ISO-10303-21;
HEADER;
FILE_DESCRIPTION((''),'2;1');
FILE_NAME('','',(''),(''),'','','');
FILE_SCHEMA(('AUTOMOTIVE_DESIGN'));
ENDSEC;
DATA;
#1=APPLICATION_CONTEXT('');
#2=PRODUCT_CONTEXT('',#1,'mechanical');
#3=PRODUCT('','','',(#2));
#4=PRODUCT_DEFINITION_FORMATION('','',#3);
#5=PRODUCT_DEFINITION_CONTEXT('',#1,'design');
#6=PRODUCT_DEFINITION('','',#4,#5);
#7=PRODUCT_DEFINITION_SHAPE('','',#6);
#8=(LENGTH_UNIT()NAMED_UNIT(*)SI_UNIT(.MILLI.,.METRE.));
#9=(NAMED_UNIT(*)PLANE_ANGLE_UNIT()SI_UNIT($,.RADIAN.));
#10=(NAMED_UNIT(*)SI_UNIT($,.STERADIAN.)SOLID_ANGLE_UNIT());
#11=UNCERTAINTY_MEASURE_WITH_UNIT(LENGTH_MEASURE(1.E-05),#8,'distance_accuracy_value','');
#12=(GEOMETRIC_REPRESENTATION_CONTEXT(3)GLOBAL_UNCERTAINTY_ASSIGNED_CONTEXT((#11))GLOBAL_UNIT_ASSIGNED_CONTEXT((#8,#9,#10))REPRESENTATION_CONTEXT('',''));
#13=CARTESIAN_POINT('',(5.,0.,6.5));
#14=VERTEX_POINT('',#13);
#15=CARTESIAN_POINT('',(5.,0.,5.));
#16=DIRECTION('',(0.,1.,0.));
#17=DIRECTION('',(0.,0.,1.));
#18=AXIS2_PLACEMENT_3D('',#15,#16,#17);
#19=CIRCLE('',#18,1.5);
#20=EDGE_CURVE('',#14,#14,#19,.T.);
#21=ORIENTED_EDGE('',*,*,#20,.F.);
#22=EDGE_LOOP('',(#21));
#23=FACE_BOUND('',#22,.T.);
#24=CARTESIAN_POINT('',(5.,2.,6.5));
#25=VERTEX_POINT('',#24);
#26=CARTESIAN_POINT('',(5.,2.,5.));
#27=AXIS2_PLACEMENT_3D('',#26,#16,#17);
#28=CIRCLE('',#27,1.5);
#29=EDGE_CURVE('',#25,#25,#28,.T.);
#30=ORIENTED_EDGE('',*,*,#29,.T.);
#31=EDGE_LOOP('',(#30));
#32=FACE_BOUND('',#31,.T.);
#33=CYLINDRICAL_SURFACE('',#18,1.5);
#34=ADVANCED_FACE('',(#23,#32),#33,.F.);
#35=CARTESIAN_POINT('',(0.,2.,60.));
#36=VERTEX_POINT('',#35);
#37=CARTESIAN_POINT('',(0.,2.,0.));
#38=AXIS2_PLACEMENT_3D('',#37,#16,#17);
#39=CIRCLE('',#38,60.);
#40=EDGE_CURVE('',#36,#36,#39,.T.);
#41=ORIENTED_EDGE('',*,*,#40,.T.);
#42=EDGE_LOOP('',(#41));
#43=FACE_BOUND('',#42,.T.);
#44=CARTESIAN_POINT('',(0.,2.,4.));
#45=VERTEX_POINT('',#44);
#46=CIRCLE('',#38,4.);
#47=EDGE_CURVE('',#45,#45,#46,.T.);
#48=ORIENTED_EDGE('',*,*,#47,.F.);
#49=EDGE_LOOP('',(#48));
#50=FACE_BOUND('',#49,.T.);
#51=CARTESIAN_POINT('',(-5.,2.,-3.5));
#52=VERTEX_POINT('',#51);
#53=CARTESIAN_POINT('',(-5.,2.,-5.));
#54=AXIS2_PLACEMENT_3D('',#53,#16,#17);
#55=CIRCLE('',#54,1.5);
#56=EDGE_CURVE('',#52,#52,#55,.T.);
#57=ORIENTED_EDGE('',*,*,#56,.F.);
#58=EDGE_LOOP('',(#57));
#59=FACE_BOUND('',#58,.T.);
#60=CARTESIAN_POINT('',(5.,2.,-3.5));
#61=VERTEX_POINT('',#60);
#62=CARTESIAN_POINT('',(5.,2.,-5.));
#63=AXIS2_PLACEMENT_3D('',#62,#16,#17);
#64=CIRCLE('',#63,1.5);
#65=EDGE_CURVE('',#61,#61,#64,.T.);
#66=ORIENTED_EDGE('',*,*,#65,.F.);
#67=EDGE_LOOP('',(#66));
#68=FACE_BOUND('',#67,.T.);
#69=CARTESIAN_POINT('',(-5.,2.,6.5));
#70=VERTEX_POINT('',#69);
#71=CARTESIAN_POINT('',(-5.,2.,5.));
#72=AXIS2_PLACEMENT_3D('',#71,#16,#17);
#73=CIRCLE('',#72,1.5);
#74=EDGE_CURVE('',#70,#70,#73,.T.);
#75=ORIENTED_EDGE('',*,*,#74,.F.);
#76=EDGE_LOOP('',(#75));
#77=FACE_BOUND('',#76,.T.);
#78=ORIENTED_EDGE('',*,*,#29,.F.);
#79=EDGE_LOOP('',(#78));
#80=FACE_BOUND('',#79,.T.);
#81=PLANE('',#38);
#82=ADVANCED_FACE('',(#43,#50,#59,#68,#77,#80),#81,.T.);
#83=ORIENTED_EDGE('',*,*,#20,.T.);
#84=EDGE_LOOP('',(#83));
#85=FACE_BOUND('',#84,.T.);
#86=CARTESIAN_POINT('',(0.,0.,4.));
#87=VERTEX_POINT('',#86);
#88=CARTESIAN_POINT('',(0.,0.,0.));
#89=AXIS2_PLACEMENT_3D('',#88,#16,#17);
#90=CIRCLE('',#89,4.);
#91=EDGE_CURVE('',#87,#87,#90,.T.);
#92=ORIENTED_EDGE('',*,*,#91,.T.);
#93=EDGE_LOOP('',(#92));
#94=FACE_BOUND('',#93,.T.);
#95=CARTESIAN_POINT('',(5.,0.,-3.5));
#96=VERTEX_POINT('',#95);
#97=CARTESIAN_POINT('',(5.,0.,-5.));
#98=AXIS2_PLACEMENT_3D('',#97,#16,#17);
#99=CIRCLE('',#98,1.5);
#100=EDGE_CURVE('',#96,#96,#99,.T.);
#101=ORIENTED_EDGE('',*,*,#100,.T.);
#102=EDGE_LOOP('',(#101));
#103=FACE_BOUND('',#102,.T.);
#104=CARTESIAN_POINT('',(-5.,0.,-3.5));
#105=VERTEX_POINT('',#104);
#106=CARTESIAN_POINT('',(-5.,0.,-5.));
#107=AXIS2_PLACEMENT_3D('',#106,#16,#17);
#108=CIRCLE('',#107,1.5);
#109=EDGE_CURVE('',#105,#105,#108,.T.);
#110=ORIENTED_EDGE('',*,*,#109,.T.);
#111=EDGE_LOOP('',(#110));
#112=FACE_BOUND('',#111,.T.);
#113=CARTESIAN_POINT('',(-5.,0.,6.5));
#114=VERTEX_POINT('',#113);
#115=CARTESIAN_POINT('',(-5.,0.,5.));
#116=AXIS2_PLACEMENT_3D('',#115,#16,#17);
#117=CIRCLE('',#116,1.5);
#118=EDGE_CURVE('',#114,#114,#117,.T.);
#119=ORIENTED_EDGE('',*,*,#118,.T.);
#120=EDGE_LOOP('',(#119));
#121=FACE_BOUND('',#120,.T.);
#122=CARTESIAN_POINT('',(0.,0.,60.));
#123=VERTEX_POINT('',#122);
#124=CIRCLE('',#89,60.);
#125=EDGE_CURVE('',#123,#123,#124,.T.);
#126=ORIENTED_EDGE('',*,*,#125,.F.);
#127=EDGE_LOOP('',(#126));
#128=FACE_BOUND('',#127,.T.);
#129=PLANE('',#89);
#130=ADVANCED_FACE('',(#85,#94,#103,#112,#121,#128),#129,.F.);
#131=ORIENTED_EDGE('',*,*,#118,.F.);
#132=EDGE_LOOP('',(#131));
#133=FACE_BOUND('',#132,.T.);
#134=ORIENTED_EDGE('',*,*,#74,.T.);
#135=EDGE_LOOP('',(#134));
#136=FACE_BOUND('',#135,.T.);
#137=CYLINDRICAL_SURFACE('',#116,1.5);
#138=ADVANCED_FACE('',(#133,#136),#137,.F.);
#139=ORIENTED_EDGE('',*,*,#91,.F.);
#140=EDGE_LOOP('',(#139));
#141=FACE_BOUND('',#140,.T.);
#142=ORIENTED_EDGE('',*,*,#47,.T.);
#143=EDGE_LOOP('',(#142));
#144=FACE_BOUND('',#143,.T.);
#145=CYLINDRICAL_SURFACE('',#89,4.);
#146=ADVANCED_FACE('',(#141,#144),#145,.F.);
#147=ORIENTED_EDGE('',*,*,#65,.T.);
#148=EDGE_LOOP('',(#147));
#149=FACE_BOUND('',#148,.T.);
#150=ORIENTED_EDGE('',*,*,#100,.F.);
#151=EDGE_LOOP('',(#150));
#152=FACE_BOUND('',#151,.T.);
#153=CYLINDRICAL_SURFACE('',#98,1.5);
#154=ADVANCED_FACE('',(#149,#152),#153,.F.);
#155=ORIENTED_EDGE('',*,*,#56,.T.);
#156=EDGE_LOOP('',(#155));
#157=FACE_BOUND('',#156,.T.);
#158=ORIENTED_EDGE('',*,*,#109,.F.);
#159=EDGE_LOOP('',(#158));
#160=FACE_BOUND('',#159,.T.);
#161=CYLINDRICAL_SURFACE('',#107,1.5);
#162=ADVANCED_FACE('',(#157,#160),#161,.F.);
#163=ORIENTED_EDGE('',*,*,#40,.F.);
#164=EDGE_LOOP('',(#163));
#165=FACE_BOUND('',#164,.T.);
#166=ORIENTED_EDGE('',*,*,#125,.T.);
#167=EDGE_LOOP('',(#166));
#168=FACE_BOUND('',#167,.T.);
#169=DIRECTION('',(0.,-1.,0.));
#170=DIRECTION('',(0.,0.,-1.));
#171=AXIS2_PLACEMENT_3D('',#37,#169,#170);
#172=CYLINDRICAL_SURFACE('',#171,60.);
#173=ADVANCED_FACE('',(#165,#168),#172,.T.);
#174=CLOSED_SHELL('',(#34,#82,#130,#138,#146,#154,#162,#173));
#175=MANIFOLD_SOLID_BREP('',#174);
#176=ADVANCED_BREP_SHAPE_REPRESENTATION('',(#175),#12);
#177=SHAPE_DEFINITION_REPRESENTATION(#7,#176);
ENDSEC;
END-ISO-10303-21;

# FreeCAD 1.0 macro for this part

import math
import FreeCAD as App
import Part
import Sketcher
from FreeCAD import Vector

doc = App.newDocument("Part")
body = doc.addObject("PartDesign::Body", "Body")

sketch1 = body.newObject("Sketcher::SketchObject", "Sketch")
sketch1.AttachmentSupport = (doc.getObject("XZ_Plane"), [""])
sketch1.MapMode = "FlatFace"
sketch1.addGeometry(Part.Circle(Vector(0, 0, 0), Vector(0, 0, 1), 60), False)
sketch1.addConstraint([
    Sketcher.Constraint("Coincident", 0, 3, -1, 1),
    Sketcher.Constraint("Diameter", 0, 120.0),
])
pad1 = body.newObject("PartDesign::Pad", "Pad")
pad1.Profile = sketch1
pad1.Length = 2
pad1.Reversed = True

sketch2 = body.newObject("Sketcher::SketchObject", "Sketch001")
sketch2.AttachmentSupport = (doc.getObject("XZ_Plane"), [""])
sketch2.MapMode = "FlatFace"
sketch2.AttachmentOffset = App.Placement(Vector(0, 0, -2), App.Rotation())
sketch2.addGeometry([
    Part.ArcOfCircle(Part.Circle(Vector(-5, -5, 0), Vector(0, 0, 1), 1.5), math.radians(90), math.radians(360)),
    Part.ArcOfCircle(Part.Circle(Vector(-5, -5, 0), Vector(0, 0, 1), 1.5), math.radians(0), math.radians(90)),
    Part.ArcOfCircle(Part.Circle(Vector(5, -5, 0), Vector(0, 0, 1), 1.5), math.radians(90), math.radians(180)),
    Part.ArcOfCircle(Part.Circle(Vector(5, -5, 0), Vector(0, 0, 1), 1.5), math.radians(0), math.radians(90)),
    Part.ArcOfCircle(Part.Circle(Vector(5, -5, 0), Vector(0, 0, 1), 1.5), math.radians(180), math.radians(360)),
    Part.Circle(Vector(0, 0, 0), Vector(0, 0, 1), 4),
    Part.ArcOfCircle(Part.Circle(Vector(5, 5, 0), Vector(0, 0, 1), 1.5), math.radians(180), math.radians(270)),
    Part.ArcOfCircle(Part.Circle(Vector(5, 5, 0), Vector(0, 0, 1), 1.5), math.radians(0), math.radians(180)),
    Part.ArcOfCircle(Part.Circle(Vector(5, 5, 0), Vector(0, 0, 1), 1.5), math.radians(-90), math.radians(0)),
    Part.ArcOfCircle(Part.Circle(Vector(-5, 5, 0), Vector(0, 0, 1), 1.5), math.radians(0), math.radians(270)),
    Part.ArcOfCircle(Part.Circle(Vector(-5, 5, 0), Vector(0, 0, 1), 1.5), math.radians(-90), math.radians(0)),
], False)
sketch2.addConstraint([
    Sketcher.Constraint("Tangent", 0, 1, 1, 2),
    Sketcher.Constraint("Coincident", 1, 1, 0, 2),
    Sketcher.Constraint("Tangent", 2, 1, 3, 2),
    Sketcher.Constraint("Tangent", 3, 1, 4, 2),
    Sketcher.Constraint("Tangent", 4, 1, 2, 2),
    Sketcher.Constraint("Tangent", 6, 1, 7, 2),
    Sketcher.Constraint("Tangent", 7, 1, 8, 2),
    Sketcher.Constraint("Tangent", 8, 1, 6, 2),
    Sketcher.Constraint("Tangent", 9, 1, 10, 2),
    Sketcher.Constraint("Coincident", 10, 1, 9, 2),
    Sketcher.Constraint("Coincident", 5, 3, -1, 1),
    Sketcher.Constraint("Equal", 1, 2),
    Sketcher.Constraint("Equal", 4, 6),
    Sketcher.Constraint("Equal", 8, 9),
    Sketcher.Constraint("Symmetric", 0, 3, 6, 3, -1, 1),
    Sketcher.Constraint("Symmetric", 2, 3, 9, 3, -1, 1),
    Sketcher.Constraint("Symmetric", 0, 3, 2, 3, -2),
    Sketcher.Constraint("Horizontal", 4, 3, 1, 1),
    Sketcher.Constraint("Horizontal", 1, 1, 3, 1),
    Sketcher.Constraint("Horizontal", 3, 1, 4, 1),
    Sketcher.Constraint("Horizontal", 10, 3, 6, 1),
    Sketcher.Constraint("Horizontal", 6, 1, 7, 1),
    Sketcher.Constraint("Horizontal", 7, 1, 9, 1),
    Sketcher.Constraint("Vertical", 10, 3, 0, 1),
    Sketcher.Constraint("Vertical", 8, 3, 2, 1),
    Sketcher.Constraint("Vertical", 2, 1, 8, 1),
    Sketcher.Constraint("Vertical", 0, 1, 10, 1),
    Sketcher.Constraint("Diameter", 5, 8.0),
    Sketcher.Constraint("Radius", 0, 1.5),
    Sketcher.Constraint("DistanceX", 0, 3, -1, 1, 5.0),
    Sketcher.Constraint("DistanceY", 0, 3, -1, 1, 5.0),
])
pocket1 = body.newObject("PartDesign::Pocket", "Pocket")
pocket1.Profile = sketch2
pocket1.Length = 2
pocket1.Reversed = True

doc.recompute()
